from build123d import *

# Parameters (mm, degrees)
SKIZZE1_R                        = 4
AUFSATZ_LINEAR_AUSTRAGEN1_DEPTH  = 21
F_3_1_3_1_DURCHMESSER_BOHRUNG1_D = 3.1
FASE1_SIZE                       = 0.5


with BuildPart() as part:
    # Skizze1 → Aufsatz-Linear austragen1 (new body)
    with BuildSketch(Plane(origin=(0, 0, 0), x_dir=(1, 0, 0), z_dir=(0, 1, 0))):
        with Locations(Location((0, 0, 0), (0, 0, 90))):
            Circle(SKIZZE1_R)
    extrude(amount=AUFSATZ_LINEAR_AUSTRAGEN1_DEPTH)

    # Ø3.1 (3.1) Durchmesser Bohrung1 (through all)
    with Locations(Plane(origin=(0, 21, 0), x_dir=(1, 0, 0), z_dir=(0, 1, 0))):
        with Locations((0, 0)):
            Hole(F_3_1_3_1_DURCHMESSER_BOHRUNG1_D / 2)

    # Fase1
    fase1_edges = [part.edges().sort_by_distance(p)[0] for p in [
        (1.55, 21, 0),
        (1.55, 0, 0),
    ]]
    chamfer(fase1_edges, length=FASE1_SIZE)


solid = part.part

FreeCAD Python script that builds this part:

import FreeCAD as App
import Part
import Sketcher
Q = App.Units.Quantity


def edges_at(feature, points):
    """Names of the edges that pass closest to the given points."""
    edges = feature.Shape.Edges
    near = lambda p: min(range(len(edges)), key=lambda i: edges[i].distToShape(Part.Vertex(*p))[0])
    return sorted({f"Edge{near(p) + 1}" for p in points})

doc = App.newDocument("Part")
params = doc.addObject("Spreadsheet::Sheet", "Params")
for row, (alias, value) in enumerate([
    ("sketch1_diameter", "8 mm"),
    ("pad1_length", "21 mm"),
    ("sketch2_diameter", "3.1 mm"),
    ("hole_diameter", "3.1 mm"),
    ("chamfer_size", "0.5 mm"),
], start=1):
    params.set(f"A{row}", alias)
    params.set(f"B{row}", "=" + value)
    params.setAlias(f"B{row}", alias)

body = doc.addObject("PartDesign::Body", "Body")

sketch1 = body.newObject("Sketcher::SketchObject", "Sketch")
sketch1.AttachmentSupport = (doc.getObject("XZ_Plane"), [""])
sketch1.MapMode = "FlatFace"
sketch1.addGeometry(Part.Circle(App.Vector(0, 0, 0), App.Vector(0, 0, 1), 4), False)
sketch1.addConstraint([
    Sketcher.Constraint("Coincident", 0, 3, -1, 1),
    Sketcher.Constraint("Diameter", 0, Q("8 mm")),
])
sketch1.setExpression("Constraints[1]", "Params.sketch1_diameter")
pad1 = body.newObject("PartDesign::Pad", "Pad")
pad1.Profile = sketch1
pad1.setExpression("Length", "Params.pad1_length")
pad1.Reversed = True

sketch2 = body.newObject("Sketcher::SketchObject", "Sketch001")
sketch2.AttachmentSupport = (doc.getObject("XZ_Plane"), [""])
sketch2.MapMode = "FlatFace"
sketch2.AttachmentOffset = App.Placement(App.Vector(0, 0, -21), App.Rotation())
sketch2.addGeometry(Part.Circle(App.Vector(0, 0, 0), App.Vector(0, 0, 1), 1.55), False)
sketch2.addConstraint([
    Sketcher.Constraint("Coincident", 0, 3, -1, 1),
    Sketcher.Constraint("Diameter", 0, Q("3.1 mm")),
])
sketch2.setExpression("Constraints[1]", "Params.sketch2_diameter")
doc.recompute()
hole = body.newObject("PartDesign::Hole", "Hole")
hole.Profile = sketch2
hole.ThreadType = "None"
hole.setExpression("Diameter", "Params.hole_diameter")
hole.DepthType = "ThroughAll"
hole.Reversed = True
doc.recompute()

chamfer = body.newObject("PartDesign::Chamfer", "Chamfer")
chamfer.Base = (hole, edges_at(hole, [(1.55, 21, 0), (1.55, 0, 0)]))
chamfer.setExpression("Size", "Params.chamfer_size")

doc.recompute()
